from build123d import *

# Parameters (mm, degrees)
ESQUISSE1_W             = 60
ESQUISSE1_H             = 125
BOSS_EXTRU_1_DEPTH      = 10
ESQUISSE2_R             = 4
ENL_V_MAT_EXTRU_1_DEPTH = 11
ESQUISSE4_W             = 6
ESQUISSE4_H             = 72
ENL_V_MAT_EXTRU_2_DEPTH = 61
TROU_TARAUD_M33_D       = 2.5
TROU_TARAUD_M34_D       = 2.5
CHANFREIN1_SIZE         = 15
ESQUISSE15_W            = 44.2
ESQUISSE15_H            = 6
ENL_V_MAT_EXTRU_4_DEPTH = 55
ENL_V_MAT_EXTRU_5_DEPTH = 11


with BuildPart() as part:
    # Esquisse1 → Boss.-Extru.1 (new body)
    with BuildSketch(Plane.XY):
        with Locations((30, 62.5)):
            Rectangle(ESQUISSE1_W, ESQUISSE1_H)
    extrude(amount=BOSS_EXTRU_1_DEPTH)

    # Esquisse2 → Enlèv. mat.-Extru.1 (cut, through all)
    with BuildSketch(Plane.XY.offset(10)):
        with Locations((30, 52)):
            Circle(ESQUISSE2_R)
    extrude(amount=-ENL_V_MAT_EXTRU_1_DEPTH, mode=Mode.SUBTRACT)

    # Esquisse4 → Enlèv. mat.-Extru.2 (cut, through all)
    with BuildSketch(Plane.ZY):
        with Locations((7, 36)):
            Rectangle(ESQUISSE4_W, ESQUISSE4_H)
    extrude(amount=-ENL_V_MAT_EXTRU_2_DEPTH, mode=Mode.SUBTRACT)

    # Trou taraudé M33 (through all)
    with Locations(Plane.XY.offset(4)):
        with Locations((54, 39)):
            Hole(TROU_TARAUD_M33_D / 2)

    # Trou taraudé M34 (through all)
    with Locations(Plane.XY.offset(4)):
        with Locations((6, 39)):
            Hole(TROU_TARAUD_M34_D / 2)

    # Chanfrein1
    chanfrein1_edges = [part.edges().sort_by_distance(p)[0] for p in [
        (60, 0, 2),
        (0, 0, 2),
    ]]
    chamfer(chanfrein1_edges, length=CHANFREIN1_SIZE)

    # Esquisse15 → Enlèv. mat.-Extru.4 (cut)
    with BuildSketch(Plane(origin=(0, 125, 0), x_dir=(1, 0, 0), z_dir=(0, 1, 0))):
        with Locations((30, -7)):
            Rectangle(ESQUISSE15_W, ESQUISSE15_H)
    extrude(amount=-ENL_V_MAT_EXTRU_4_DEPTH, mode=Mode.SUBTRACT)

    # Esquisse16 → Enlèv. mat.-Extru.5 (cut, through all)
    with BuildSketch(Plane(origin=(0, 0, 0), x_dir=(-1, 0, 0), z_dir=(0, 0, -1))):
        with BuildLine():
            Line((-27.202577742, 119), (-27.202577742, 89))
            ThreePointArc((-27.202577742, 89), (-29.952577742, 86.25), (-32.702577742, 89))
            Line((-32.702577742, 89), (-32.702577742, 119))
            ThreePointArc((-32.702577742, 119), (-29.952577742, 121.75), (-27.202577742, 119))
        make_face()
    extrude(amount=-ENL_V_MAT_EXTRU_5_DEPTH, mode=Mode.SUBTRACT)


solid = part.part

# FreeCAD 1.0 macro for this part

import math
import FreeCAD as App
import Part
import Sketcher

V = App.Vector
Q = App.Units.Quantity


def edges_at(feature, points):
    """Names of the edges that pass closest to the given points."""
    edges = feature.Shape.Edges
    near = lambda p: min(range(len(edges)), key=lambda i: edges[i].distToShape(Part.Vertex(*p))[0])
    return sorted({f"Edge{near(p) + 1}" for p in points})

doc = App.newDocument("Part")
body = doc.addObject("PartDesign::Body", "Body")

# Sketch on XY plane
sketch1 = body.newObject("Sketcher::SketchObject", "Sketch")
sketch1.AttachmentSupport = (doc.getObject("XY_Plane"), [""])
sketch1.MapMode = "FlatFace"
sketch1.addGeometry([
    Part.LineSegment(V(0, 125, 0), V(0, 0, 0)),
    Part.LineSegment(V(0, 0, 0), V(60, 0, 0)),
    Part.LineSegment(V(60, 0, 0), V(60, 125, 0)),
    Part.LineSegment(V(60, 125, 0), V(0, 125, 0)),
], False)
sketch1.addConstraint([
    Sketcher.Constraint("Coincident", 0, 2, 1, 1),
    Sketcher.Constraint("Coincident", 1, 2, 2, 1),
    Sketcher.Constraint("Coincident", 2, 2, 3, 1),
    Sketcher.Constraint("Coincident", 3, 2, 0, 1),
    Sketcher.Constraint("Vertical", 0),
    Sketcher.Constraint("Horizontal", 1),
    Sketcher.Constraint("Vertical", 2),
    Sketcher.Constraint("Horizontal", 3),
    Sketcher.Constraint("Coincident", 0, 2, -1, 1),
    Sketcher.Constraint("DistanceX", 1, 1, 1, 2, Q("60 mm")),
    Sketcher.Constraint("DistanceY", 0, 2, 0, 1, Q("125 mm")),
])
pad1 = body.newObject("PartDesign::Pad", "Pad")
pad1.Profile = sketch1
pad1.Length = 10

# Sketch on XY plane
sketch2 = body.newObject("Sketcher::SketchObject", "Sketch001")
sketch2.AttachmentSupport = (doc.getObject("XY_Plane"), [""])
sketch2.MapMode = "FlatFace"
sketch2.AttachmentOffset = App.Placement(V(0, 0, 10), App.Rotation())
sketch2.addGeometry(Part.Circle(V(30, 52, 0), V(0, 0, 1), 4), False)
sketch2.addConstraint([
    Sketcher.Constraint("Diameter", 0, Q("8 mm")),
    Sketcher.Constraint("DistanceX", -1, 1, 0, 3, Q("30 mm")),
    Sketcher.Constraint("DistanceY", -1, 1, 0, 3, Q("52 mm")),
])
pocket1 = body.newObject("PartDesign::Pocket", "Pocket")
pocket1.Profile = sketch2
pocket1.Type = "ThroughAll"

# Sketch on YZ plane
sketch3 = body.newObject("Sketcher::SketchObject", "Sketch002")
sketch3.AttachmentSupport = (doc.getObject("YZ_Plane"), [""])
sketch3.MapMode = "FlatFace"
sketch3.addGeometry([
    Part.LineSegment(V(72, 4, 0), V(0, 4, 0)),
    Part.LineSegment(V(0, 4, 0), V(0, 10, 0)),
    Part.LineSegment(V(0, 10, 0), V(72, 10, 0)),
    Part.LineSegment(V(72, 10, 0), V(72, 4, 0)),
], False)
sketch3.addConstraint([
    Sketcher.Constraint("Coincident", 0, 2, 1, 1),
    Sketcher.Constraint("Coincident", 1, 2, 2, 1),
    Sketcher.Constraint("Coincident", 2, 2, 3, 1),
    Sketcher.Constraint("Coincident", 3, 2, 0, 1),
    Sketcher.Constraint("Horizontal", 0),
    Sketcher.Constraint("Vertical", 1),
    Sketcher.Constraint("Horizontal", 2),
    Sketcher.Constraint("Vertical", 3),
    Sketcher.Constraint("PointOnObject", 0, 2, -2),
    Sketcher.Constraint("DistanceX", 0, 2, 0, 1, Q("72 mm")),
    Sketcher.Constraint("DistanceY", 1, 1, 1, 2, Q("6 mm")),
    Sketcher.Constraint("DistanceY", -1, 1, 0, 2, Q("4 mm")),
])
pocket2 = body.newObject("PartDesign::Pocket", "Pocket001")
pocket2.Profile = sketch3
pocket2.Type = "ThroughAll"
pocket2.Reversed = True

# Sketch on XY plane
sketch4 = body.newObject("Sketcher::SketchObject", "Sketch003")
sketch4.AttachmentSupport = (doc.getObject("XY_Plane"), [""])
sketch4.MapMode = "FlatFace"
sketch4.AttachmentOffset = App.Placement(V(0, 0, 4), App.Rotation())
sketch4.addGeometry(Part.Circle(V(54, 39, 0), V(0, 0, 1), 1.25), False)
sketch4.addConstraint([
    Sketcher.Constraint("Diameter", 0, Q("2.5 mm")),
    Sketcher.Constraint("DistanceX", -1, 1, 0, 3, Q("54 mm")),
    Sketcher.Constraint("DistanceY", -1, 1, 0, 3, Q("39 mm")),
])
doc.recompute()
hole = body.newObject("PartDesign::Hole", "Hole")
hole.Profile = sketch4
hole.ThreadType = "None"
hole.Diameter = 2.5
hole.DepthType = "ThroughAll"

# Sketch on XY plane
sketch5 = body.newObject("Sketcher::SketchObject", "Sketch004")
sketch5.AttachmentSupport = (doc.getObject("XY_Plane"), [""])
sketch5.MapMode = "FlatFace"
sketch5.AttachmentOffset = App.Placement(V(0, 0, 4), App.Rotation())
sketch5.addGeometry(Part.Circle(V(6, 39, 0), V(0, 0, 1), 1.25), False)
sketch5.addConstraint([
    Sketcher.Constraint("Diameter", 0, Q("2.5 mm")),
    Sketcher.Constraint("DistanceX", -1, 1, 0, 3, Q("6 mm")),
    Sketcher.Constraint("DistanceY", -1, 1, 0, 3, Q("39 mm")),
])
doc.recompute()
hole2 = body.newObject("PartDesign::Hole", "Hole001")
hole2.Profile = sketch5
hole2.ThreadType = "None"
hole2.Diameter = 2.5
hole2.DepthType = "ThroughAll"
doc.recompute()

chamfer = body.newObject("PartDesign::Chamfer", "Chamfer")
chamfer.Base = (hole2, edges_at(hole2, [(60, 0, 2), (0, 0, 2)]))
chamfer.Size = 15

# Sketch on XZ plane
sketch6 = body.newObject("Sketcher::SketchObject", "Sketch005")
sketch6.AttachmentSupport = (doc.getObject("XZ_Plane"), [""])
sketch6.MapMode = "FlatFace"
sketch6.AttachmentOffset = App.Placement(V(0, 0, -125), App.Rotation())
sketch6.addGeometry([
    Part.LineSegment(V(7.9, 4, 0), V(7.9, 10, 0)),
    Part.LineSegment(V(7.9, 10, 0), V(52.1, 10, 0)),
    Part.LineSegment(V(52.1, 10, 0), V(52.1, 4, 0)),
    Part.LineSegment(V(52.1, 4, 0), V(7.9, 4, 0)),
], False)
sketch6.addConstraint([
    Sketcher.Constraint("Coincident", 0, 2, 1, 1),
    Sketcher.Constraint("Coincident", 1, 2, 2, 1),
    Sketcher.Constraint("Coincident", 2, 2, 3, 1),
    Sketcher.Constraint("Coincident", 3, 2, 0, 1),
    Sketcher.Constraint("Vertical", 0),
    Sketcher.Constraint("Horizontal", 1),
    Sketcher.Constraint("Vertical", 2),
    Sketcher.Constraint("Horizontal", 3),
    Sketcher.Constraint("DistanceY", 0, 1, 0, 2, Q("6 mm")),
    Sketcher.Constraint("DistanceX", 1, 1, 1, 2, Q("44.2 mm")),
    Sketcher.Constraint("DistanceY", -1, 1, 0, 2, Q("10 mm")),
    Sketcher.Constraint("DistanceX", -1, 1, 0, 2, Q("7.9 mm")),
])
pocket3 = body.newObject("PartDesign::Pocket", "Pocket002")
pocket3.Profile = sketch6
pocket3.Length = 55
pocket3.Reversed = True

# Sketch on XY plane
sketch7 = body.newObject("Sketcher::SketchObject", "Sketch006")
sketch7.AttachmentSupport = (doc.getObject("XY_Plane"), [""])
sketch7.MapMode = "FlatFace"
sketch7.addGeometry([
    Part.LineSegment(V(27.202578, 89, 0), V(27.202578, 119, 0)),
    Part.ArcOfCircle(Part.Circle(V(29.952578, 119, 0), V(0, 0, 1), 2.75), math.radians(0), math.radians(180)),
    Part.LineSegment(V(32.702578, 119, 0), V(32.702578, 89, 0)),
    Part.ArcOfCircle(Part.Circle(V(29.952578, 89, 0), V(0, 0, 1), 2.75), math.radians(180), math.radians(360)),
], False)
sketch7.addConstraint([
    Sketcher.Constraint("Tangent", 0, 2, 1, 2),
    Sketcher.Constraint("Tangent", 1, 1, 2, 1),
    Sketcher.Constraint("Tangent", 2, 2, 3, 2),
    Sketcher.Constraint("Tangent", 3, 1, 0, 1),
    Sketcher.Constraint("Vertical", 0),
    Sketcher.Constraint("Vertical", 2),
    Sketcher.Constraint("DistanceY", 0, 1, 0, 2, Q("30 mm")),
    Sketcher.Constraint("Radius", 1, Q("2.75 mm")),
    Sketcher.Constraint("DistanceY", -1, 1, 1, 3, Q("119 mm")),
    Sketcher.Constraint("DistanceX", -1, 1, 1, 3, Q("29.952578 mm")),
])
pocket4 = body.newObject("PartDesign::Pocket", "Pocket003")
pocket4.Profile = sketch7
pocket4.Type = "ThroughAll"
pocket4.Reversed = True

doc.recompute()
